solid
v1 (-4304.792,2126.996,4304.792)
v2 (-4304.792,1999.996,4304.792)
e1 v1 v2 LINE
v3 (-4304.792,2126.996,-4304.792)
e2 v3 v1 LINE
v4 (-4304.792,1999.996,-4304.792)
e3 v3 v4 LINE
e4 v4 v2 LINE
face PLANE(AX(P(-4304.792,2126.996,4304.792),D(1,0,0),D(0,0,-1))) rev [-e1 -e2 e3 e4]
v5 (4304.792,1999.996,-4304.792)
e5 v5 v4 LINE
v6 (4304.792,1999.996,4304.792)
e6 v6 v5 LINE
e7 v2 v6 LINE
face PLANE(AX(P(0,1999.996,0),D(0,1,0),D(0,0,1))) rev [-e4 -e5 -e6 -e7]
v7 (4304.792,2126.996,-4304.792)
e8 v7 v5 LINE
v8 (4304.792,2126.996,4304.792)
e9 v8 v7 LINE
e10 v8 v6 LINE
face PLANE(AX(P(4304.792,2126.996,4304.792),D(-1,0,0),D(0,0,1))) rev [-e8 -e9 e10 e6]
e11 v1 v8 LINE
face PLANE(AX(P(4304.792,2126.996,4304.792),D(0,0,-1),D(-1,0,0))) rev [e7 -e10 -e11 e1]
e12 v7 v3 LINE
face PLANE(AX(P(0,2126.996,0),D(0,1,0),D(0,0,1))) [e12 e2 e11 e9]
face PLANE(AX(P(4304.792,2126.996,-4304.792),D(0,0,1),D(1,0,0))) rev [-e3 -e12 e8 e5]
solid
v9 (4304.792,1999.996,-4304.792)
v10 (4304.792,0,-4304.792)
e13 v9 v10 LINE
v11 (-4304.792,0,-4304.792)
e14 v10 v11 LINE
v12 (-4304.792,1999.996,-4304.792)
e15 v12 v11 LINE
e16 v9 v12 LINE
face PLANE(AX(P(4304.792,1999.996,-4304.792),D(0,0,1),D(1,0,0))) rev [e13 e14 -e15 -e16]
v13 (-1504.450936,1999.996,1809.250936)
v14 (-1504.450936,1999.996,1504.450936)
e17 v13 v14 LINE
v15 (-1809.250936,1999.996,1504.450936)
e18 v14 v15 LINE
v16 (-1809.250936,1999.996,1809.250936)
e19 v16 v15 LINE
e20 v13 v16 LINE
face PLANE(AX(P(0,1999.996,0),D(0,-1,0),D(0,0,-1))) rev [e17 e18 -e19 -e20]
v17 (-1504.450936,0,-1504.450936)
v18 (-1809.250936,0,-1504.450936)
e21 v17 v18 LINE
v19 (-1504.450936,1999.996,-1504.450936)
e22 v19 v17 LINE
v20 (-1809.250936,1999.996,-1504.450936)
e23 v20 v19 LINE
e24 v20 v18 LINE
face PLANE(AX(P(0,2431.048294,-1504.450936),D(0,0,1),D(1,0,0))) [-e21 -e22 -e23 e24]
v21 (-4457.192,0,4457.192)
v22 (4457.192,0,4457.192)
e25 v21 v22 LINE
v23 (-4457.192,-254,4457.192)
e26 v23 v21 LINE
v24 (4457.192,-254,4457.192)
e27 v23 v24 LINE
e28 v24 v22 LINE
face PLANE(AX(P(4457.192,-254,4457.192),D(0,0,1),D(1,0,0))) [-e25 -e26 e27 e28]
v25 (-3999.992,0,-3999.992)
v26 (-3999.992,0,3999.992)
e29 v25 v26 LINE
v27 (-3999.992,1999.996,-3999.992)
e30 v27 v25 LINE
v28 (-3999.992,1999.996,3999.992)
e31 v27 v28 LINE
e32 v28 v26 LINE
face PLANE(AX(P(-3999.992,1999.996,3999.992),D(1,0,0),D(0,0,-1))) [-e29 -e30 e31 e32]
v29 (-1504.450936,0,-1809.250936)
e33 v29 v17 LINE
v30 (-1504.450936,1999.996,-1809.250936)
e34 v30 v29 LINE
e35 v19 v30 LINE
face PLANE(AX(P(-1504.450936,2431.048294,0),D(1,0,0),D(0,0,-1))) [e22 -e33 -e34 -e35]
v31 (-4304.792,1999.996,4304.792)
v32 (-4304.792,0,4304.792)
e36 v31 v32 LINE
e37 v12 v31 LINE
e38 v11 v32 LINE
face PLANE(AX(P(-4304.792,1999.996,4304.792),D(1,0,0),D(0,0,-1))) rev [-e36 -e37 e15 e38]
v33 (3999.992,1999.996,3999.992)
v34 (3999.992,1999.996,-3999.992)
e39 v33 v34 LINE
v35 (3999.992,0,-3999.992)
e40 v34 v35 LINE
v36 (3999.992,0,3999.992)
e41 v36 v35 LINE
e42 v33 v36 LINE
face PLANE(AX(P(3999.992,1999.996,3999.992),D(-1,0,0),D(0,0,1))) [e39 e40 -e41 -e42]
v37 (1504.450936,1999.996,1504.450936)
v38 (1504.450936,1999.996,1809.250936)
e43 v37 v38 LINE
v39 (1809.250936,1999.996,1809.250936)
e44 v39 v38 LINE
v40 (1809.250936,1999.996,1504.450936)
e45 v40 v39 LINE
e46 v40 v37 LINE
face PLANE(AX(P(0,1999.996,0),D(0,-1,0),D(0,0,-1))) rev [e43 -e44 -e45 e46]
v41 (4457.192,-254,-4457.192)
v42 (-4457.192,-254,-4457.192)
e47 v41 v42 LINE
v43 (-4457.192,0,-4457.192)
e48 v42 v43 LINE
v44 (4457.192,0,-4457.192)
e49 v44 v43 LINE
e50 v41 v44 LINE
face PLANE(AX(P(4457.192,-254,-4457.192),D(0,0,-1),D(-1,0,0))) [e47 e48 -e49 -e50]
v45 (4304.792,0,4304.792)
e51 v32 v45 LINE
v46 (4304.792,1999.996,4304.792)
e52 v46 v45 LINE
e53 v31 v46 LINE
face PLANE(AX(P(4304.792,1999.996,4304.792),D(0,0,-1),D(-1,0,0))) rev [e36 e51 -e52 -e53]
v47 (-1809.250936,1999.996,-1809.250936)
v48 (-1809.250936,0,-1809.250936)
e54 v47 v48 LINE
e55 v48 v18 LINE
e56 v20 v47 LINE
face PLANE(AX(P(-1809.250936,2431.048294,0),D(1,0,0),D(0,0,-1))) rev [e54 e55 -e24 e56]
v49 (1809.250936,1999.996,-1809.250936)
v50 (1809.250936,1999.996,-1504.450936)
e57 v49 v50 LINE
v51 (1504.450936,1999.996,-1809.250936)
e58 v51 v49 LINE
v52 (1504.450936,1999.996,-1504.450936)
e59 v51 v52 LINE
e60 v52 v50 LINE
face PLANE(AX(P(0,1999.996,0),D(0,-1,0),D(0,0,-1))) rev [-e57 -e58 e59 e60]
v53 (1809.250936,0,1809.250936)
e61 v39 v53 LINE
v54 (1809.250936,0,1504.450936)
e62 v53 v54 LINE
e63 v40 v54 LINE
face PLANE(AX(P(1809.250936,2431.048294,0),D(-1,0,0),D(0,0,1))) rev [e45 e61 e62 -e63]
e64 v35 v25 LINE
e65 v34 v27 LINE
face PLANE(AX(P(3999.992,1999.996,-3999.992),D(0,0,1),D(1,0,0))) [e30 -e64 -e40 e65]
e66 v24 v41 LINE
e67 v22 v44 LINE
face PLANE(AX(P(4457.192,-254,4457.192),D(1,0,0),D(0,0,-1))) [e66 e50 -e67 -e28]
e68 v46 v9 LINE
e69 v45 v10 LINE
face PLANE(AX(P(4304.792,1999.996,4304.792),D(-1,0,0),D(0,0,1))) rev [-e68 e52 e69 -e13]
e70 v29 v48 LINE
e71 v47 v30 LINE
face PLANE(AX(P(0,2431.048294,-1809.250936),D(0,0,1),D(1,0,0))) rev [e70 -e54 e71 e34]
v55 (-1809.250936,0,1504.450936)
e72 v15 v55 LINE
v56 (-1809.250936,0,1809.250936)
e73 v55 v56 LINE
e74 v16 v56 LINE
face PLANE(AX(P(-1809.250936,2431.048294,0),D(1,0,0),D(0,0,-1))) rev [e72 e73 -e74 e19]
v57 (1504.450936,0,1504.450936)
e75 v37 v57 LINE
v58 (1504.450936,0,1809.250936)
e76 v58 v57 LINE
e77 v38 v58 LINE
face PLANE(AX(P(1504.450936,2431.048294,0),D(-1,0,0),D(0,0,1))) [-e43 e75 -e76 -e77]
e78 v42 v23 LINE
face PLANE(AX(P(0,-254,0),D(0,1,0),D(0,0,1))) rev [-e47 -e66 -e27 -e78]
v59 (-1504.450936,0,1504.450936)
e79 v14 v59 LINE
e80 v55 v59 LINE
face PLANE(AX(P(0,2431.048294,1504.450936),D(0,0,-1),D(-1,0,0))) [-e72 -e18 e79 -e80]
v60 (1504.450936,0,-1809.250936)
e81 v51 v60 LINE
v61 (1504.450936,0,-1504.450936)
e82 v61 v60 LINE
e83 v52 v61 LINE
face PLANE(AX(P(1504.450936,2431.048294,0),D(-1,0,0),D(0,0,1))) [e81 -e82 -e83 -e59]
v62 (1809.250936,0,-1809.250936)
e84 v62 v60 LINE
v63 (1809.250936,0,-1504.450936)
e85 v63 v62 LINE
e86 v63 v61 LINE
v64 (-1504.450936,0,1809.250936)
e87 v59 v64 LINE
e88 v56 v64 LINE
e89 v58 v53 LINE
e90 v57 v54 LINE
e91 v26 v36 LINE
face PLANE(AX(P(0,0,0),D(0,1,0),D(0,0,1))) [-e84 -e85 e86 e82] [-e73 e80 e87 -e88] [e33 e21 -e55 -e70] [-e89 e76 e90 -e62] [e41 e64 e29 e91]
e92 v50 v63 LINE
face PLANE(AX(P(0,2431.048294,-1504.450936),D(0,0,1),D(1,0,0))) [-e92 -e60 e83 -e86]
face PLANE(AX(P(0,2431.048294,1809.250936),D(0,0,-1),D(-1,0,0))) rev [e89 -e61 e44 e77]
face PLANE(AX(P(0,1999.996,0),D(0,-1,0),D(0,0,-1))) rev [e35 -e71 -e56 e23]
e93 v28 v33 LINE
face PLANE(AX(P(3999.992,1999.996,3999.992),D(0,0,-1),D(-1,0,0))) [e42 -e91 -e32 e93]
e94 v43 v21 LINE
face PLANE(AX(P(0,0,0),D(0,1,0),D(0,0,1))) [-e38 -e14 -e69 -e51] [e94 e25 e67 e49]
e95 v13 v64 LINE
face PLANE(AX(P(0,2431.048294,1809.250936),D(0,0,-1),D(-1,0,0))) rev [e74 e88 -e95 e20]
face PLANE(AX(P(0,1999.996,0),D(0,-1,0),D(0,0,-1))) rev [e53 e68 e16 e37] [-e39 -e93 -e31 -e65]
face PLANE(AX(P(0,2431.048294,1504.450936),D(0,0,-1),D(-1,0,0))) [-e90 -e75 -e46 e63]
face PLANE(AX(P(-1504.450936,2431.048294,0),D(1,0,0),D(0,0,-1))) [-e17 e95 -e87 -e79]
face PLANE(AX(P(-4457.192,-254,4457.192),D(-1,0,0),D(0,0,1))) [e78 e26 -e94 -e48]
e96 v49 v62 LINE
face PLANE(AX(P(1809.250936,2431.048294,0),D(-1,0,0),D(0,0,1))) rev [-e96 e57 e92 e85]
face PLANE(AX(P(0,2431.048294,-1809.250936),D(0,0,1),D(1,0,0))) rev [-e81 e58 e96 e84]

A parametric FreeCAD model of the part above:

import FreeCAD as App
import Part
import Sketcher
from FreeCAD import Vector
Q = App.Units.Quantity

doc = App.newDocument("Part")
body = doc.addObject("PartDesign::Body", "Body")

# Sketch on XZ plane
sketch1 = doc.addObject("Sketcher::SketchObject", "Sketch")
body.addObject(sketch1)
sketch1.AttachmentSupport = (doc.XZ_Plane, [""])
sketch1.MapMode = "FlatFace"
sketch1.addGeometry([
    Part.LineSegment(Vector(-4304.792, -4304.792, 0), Vector(-4304.792, 4304.792, 0)),  # 0
    Part.LineSegment(Vector(-4304.792, 4304.792, 0), Vector(4304.792, 4304.792, 0)),  # 1
    Part.LineSegment(Vector(4304.792, 4304.792, 0), Vector(4304.792, -4304.792, 0)),  # 2
    Part.LineSegment(Vector(4304.792, -4304.792, 0), Vector(-4304.792, -4304.792, 0)),  # 3
    Part.LineSegment(Vector(3999.992, 3999.992, 0), Vector(-3999.992, 3999.992, 0)),  # 4
    Part.LineSegment(Vector(-3999.992, 3999.992, 0), Vector(-3999.992, -3999.992, 0)),  # 5
    Part.LineSegment(Vector(-3999.992, -3999.992, 0), Vector(3999.992, -3999.992, 0)),  # 6
    Part.LineSegment(Vector(3999.992, -3999.992, 0), Vector(3999.992, 3999.992, 0)),  # 7
], False)
sketch1.addConstraint([
    Sketcher.Constraint("Coincident", 0, 2, 1, 1),
    Sketcher.Constraint("Coincident", 1, 2, 2, 1),
    Sketcher.Constraint("Coincident", 2, 2, 3, 1),
    Sketcher.Constraint("Coincident", 3, 2, 0, 1),
    Sketcher.Constraint("Coincident", 4, 2, 5, 1),
    Sketcher.Constraint("Coincident", 5, 2, 6, 1),
    Sketcher.Constraint("Coincident", 6, 2, 7, 1),
    Sketcher.Constraint("Coincident", 7, 2, 4, 1),
    Sketcher.Constraint("Vertical", 0),
    Sketcher.Constraint("Horizontal", 1),
    Sketcher.Constraint("Vertical", 2),
    Sketcher.Constraint("Horizontal", 3),
    Sketcher.Constraint("Horizontal", 4),
    Sketcher.Constraint("Vertical", 5),
    Sketcher.Constraint("Horizontal", 6),
    Sketcher.Constraint("Vertical", 7),
    Sketcher.Constraint("Symmetric", 0, 2, 2, 2, -1, 1),
    Sketcher.Constraint("Symmetric", 4, 2, 6, 2, -1, 1),
    Sketcher.Constraint("Equal", 3, 0),
    Sketcher.Constraint("Equal", 6, 5),
    Sketcher.Constraint("DistanceX", 0, 2, 4, 2, Q("12 in")),
    Sketcher.Constraint("DistanceX", 1, 1, 1, 2, Q("338.96 in")),
])
pad1 = doc.addObject("PartDesign::Pad", "Pad")
body.addObject(pad1)
pad1.Profile = sketch1
pad1.Length = Q("78.74 in")
pad1.Reversed = True

# Sketch on XZ plane
sketch2 = doc.addObject("Sketcher::SketchObject", "Sketch001")
body.addObject(sketch2)
sketch2.AttachmentSupport = (doc.XZ_Plane, [""])
sketch2.MapMode = "FlatFace"
sketch2.addGeometry([
    Part.LineSegment(Vector(-4304.792, 4304.792, 0), Vector(-4304.792, -4304.792, 0)),
    Part.LineSegment(Vector(-4304.792, -4304.792, 0), Vector(4304.792, -4304.792, 0)),
    Part.LineSegment(Vector(4304.792, -4304.792, 0), Vector(4304.792, 4304.792, 0)),
    Part.LineSegment(Vector(4304.792, 4304.792, 0), Vector(-4304.792, 4304.792, 0)),
], False)
sketch2.addConstraint([
    Sketcher.Constraint("Coincident", 0, 2, 1, 1),
    Sketcher.Constraint("Coincident", 1, 2, 2, 1),
    Sketcher.Constraint("Coincident", 2, 2, 3, 1),
    Sketcher.Constraint("Coincident", 3, 2, 0, 1),
    Sketcher.Constraint("Vertical", 0),
    Sketcher.Constraint("Horizontal", 1),
    Sketcher.Constraint("Vertical", 2),
    Sketcher.Constraint("Horizontal", 3),
    Sketcher.Constraint("Symmetric", 0, 2, 2, 2, -1, 1),
    Sketcher.Constraint("Equal", 3, 0),
    Sketcher.Constraint("DistanceX", 1, 1, 1, 2, Q("338.96 in")),
])
pad2 = doc.addObject("PartDesign::Pad", "Pad001")
body.addObject(pad2)
pad2.Profile = sketch2
pad2.Length = Q("6 in")

# Sketch on XZ plane
sketch3 = doc.addObject("Sketcher::SketchObject", "Sketch002")
body.addObject(sketch3)
sketch3.AttachmentSupport = (doc.XZ_Plane, [""])
sketch3.MapMode = "FlatFace"
sketch3.addGeometry([
    Part.LineSegment(Vector(1504.450936, -1809.250936, 0), Vector(1504.450936, -1504.450936, 0)),  # 0
    Part.LineSegment(Vector(1504.450936, -1504.450936, 0), Vector(1809.250936, -1504.450936, 0)),  # 1
    Part.LineSegment(Vector(1809.250936, -1504.450936, 0), Vector(1809.250936, -1809.250936, 0)),  # 2
    Part.LineSegment(Vector(1809.250936, -1809.250936, 0), Vector(1504.450936, -1809.250936, 0)),  # 3
    Part.LineSegment(Vector(-1809.250936, -1809.250936, 0), Vector(-1809.250936, -1504.450936, 0)),  # 4
    Part.LineSegment(Vector(-1809.250936, -1504.450936, 0), Vector(-1504.450936, -1504.450936, 0)),  # 5
    Part.LineSegment(Vector(-1504.450936, -1504.450936, 0), Vector(-1504.450936, -1809.250936, 0)),  # 6
    Part.LineSegment(Vector(-1504.450936, -1809.250936, 0), Vector(-1809.250936, -1809.250936, 0)),  # 7
    Part.LineSegment(Vector(1504.450936, 1504.450936, 0), Vector(1504.450936, 1809.250936, 0)),  # 8
    Part.LineSegment(Vector(1504.450936, 1809.250936, 0), Vector(1809.250936, 1809.250936, 0)),  # 9
    Part.LineSegment(Vector(1809.250936, 1809.250936, 0), Vector(1809.250936, 1504.450936, 0)),  # 10
    Part.LineSegment(Vector(1809.250936, 1504.450936, 0), Vector(1504.450936, 1504.450936, 0)),  # 11
    Part.LineSegment(Vector(-1809.250936, 1504.450936, 0), Vector(-1809.250936, 1809.250936, 0)),  # 12
    Part.LineSegment(Vector(-1809.250936, 1809.250936, 0), Vector(-1504.450936, 1809.250936, 0)),  # 13
    Part.LineSegment(Vector(-1504.450936, 1809.250936, 0), Vector(-1504.450936, 1504.450936, 0)),  # 14
    Part.LineSegment(Vector(-1504.450936, 1504.450936, 0), Vector(-1809.250936, 1504.450936, 0)),  # 15
], False)
sketch3.addConstraint([
    Sketcher.Constraint("Coincident", 0, 2, 1, 1),
    Sketcher.Constraint("Coincident", 1, 2, 2, 1),
    Sketcher.Constraint("Coincident", 2, 2, 3, 1),
    Sketcher.Constraint("Coincident", 3, 2, 0, 1),
    Sketcher.Constraint("Coincident", 4, 2, 5, 1),
    Sketcher.Constraint("Coincident", 5, 2, 6, 1),
    Sketcher.Constraint("Coincident", 6, 2, 7, 1),
    Sketcher.Constraint("Coincident", 7, 2, 4, 1),
    Sketcher.Constraint("Coincident", 8, 2, 9, 1),
    Sketcher.Constraint("Coincident", 9, 2, 10, 1),
    Sketcher.Constraint("Coincident", 10, 2, 11, 1),
    Sketcher.Constraint("Coincident", 11, 2, 8, 1),
    Sketcher.Constraint("Coincident", 12, 2, 13, 1),
    Sketcher.Constraint("Coincident", 13, 2, 14, 1),
    Sketcher.Constraint("Coincident", 14, 2, 15, 1),
    Sketcher.Constraint("Coincident", 15, 2, 12, 1),
    Sketcher.Constraint("Vertical", 0),
    Sketcher.Constraint("Horizontal", 1),
    Sketcher.Constraint("Vertical", 2),
    Sketcher.Constraint("Horizontal", 3),
    Sketcher.Constraint("Vertical", 4),
    Sketcher.Constraint("Horizontal", 5),
    Sketcher.Constraint("Vertical", 6),
    Sketcher.Constraint("Horizontal", 7),
    Sketcher.Constraint("Vertical", 8),
    Sketcher.Constraint("Horizontal", 9),
    Sketcher.Constraint("Vertical", 10),
    Sketcher.Constraint("Horizontal", 11),
    Sketcher.Constraint("Vertical", 12),
    Sketcher.Constraint("Horizontal", 13),
    Sketcher.Constraint("Vertical", 14),
    Sketcher.Constraint("Horizontal", 15),
    Sketcher.Constraint("Symmetric", 6, 2, 8, 2, -1, 1),
    Sketcher.Constraint("Symmetric", 4, 2, 10, 2, -1, 1),
    Sketcher.Constraint("Symmetric", 2, 2, 12, 2, -1, 1),
    Sketcher.Constraint("Symmetric", 0, 2, 14, 2, -1, 1),
    Sketcher.Constraint("Symmetric", 1, 2, 4, 2, -2),
    Sketcher.Constraint("Symmetric", 3, 2, 6, 2, -2),
    Sketcher.Constraint("Equal", 15, 0),
    Sketcher.Constraint("DistanceX", 1, 1, 1, 2, Q("12 in")),
    Sketcher.Constraint("DistanceX", 4, 2, 0, 2, Q("3313.701872 mm")),
    Sketcher.Constraint("DistanceY", 0, 2, 8, 2, Q("3313.701872 mm")),
])
pad3 = doc.addObject("PartDesign::Pad", "Pad002")
body.addObject(pad3)
pad3.Profile = sketch3
pad3.Length = Q("78.74 in")
pad3.Reversed = True

# Sketch on XZ plane
sketch4 = doc.addObject("Sketcher::SketchObject", "Sketch003")
body.addObject(sketch4)
sketch4.AttachmentSupport = (doc.XZ_Plane, [""])
sketch4.MapMode = "FlatFace"
sketch4.addGeometry([
    Part.LineSegment(Vector(-4457.192, -4457.192, 0), Vector(-4457.192, 4457.192, 0)),
    Part.LineSegment(Vector(-4457.192, 4457.192, 0), Vector(4457.192, 4457.192, 0)),
    Part.LineSegment(Vector(4457.192, 4457.192, 0), Vector(4457.192, -4457.192, 0)),
    Part.LineSegment(Vector(4457.192, -4457.192, 0), Vector(-4457.192, -4457.192, 0)),
], False)
sketch4.addConstraint([
    Sketcher.Constraint("Coincident", 0, 2, 1, 1),
    Sketcher.Constraint("Coincident", 1, 2, 2, 1),
    Sketcher.Constraint("Coincident", 2, 2, 3, 1),
    Sketcher.Constraint("Coincident", 3, 2, 0, 1),
    Sketcher.Constraint("Vertical", 0),
    Sketcher.Constraint("Horizontal", 1),
    Sketcher.Constraint("Vertical", 2),
    Sketcher.Constraint("Horizontal", 3),
    Sketcher.Constraint("Symmetric", 0, 2, 2, 2, -1, 1),
    Sketcher.Constraint("Equal", 3, 0),
    Sketcher.Constraint("DistanceX", 1, 1, 1, 2, Q("350.96 in")),
])
pad4 = doc.addObject("PartDesign::Pad", "Pad003")
body.addObject(pad4)
pad4.Profile = sketch4
pad4.Length = Q("10 in")
body2 = doc.addObject("PartDesign::Body", "Body001")

# Sketch on XZ plane
sketch5 = doc.addObject("Sketcher::SketchObject", "Sketch004")
body2.addObject(sketch5)
sketch5.AttachmentSupport = (doc.getObject("XZ_Plane001"), [""])
sketch5.MapMode = "FlatFace"
sketch5.AttachmentOffset = App.Placement(Vector(0, 0, -78.74 * 25.4), App.Rotation())
sketch5.addGeometry([
    Part.LineSegment(Vector(-4304.792, -4304.792, 0), Vector(-4304.792, 4304.792, 0)),
    Part.LineSegment(Vector(-4304.792, 4304.792, 0), Vector(4304.792, 4304.792, 0)),
    Part.LineSegment(Vector(4304.792, 4304.792, 0), Vector(4304.792, -4304.792, 0)),
    Part.LineSegment(Vector(4304.792, -4304.792, 0), Vector(-4304.792, -4304.792, 0)),
], False)
sketch5.addConstraint([
    Sketcher.Constraint("Coincident", 0, 2, 1, 1),
    Sketcher.Constraint("Coincident", 1, 2, 2, 1),
    Sketcher.Constraint("Coincident", 2, 2, 3, 1),
    Sketcher.Constraint("Coincident", 3, 2, 0, 1),
    Sketcher.Constraint("Vertical", 0),
    Sketcher.Constraint("Horizontal", 1),
    Sketcher.Constraint("Vertical", 2),
    Sketcher.Constraint("Horizontal", 3),
    Sketcher.Constraint("Symmetric", 0, 2, 2, 2, -1, 1),
    Sketcher.Constraint("Equal", 3, 0),
    Sketcher.Constraint("DistanceX", 1, 1, 1, 2, Q("338.96 in")),
])
pad5 = doc.addObject("PartDesign::Pad", "Pad004")
body2.addObject(pad5)
pad5.Profile = sketch5
pad5.Length = Q("5 in")
pad5.Reversed = True

doc.recompute()
